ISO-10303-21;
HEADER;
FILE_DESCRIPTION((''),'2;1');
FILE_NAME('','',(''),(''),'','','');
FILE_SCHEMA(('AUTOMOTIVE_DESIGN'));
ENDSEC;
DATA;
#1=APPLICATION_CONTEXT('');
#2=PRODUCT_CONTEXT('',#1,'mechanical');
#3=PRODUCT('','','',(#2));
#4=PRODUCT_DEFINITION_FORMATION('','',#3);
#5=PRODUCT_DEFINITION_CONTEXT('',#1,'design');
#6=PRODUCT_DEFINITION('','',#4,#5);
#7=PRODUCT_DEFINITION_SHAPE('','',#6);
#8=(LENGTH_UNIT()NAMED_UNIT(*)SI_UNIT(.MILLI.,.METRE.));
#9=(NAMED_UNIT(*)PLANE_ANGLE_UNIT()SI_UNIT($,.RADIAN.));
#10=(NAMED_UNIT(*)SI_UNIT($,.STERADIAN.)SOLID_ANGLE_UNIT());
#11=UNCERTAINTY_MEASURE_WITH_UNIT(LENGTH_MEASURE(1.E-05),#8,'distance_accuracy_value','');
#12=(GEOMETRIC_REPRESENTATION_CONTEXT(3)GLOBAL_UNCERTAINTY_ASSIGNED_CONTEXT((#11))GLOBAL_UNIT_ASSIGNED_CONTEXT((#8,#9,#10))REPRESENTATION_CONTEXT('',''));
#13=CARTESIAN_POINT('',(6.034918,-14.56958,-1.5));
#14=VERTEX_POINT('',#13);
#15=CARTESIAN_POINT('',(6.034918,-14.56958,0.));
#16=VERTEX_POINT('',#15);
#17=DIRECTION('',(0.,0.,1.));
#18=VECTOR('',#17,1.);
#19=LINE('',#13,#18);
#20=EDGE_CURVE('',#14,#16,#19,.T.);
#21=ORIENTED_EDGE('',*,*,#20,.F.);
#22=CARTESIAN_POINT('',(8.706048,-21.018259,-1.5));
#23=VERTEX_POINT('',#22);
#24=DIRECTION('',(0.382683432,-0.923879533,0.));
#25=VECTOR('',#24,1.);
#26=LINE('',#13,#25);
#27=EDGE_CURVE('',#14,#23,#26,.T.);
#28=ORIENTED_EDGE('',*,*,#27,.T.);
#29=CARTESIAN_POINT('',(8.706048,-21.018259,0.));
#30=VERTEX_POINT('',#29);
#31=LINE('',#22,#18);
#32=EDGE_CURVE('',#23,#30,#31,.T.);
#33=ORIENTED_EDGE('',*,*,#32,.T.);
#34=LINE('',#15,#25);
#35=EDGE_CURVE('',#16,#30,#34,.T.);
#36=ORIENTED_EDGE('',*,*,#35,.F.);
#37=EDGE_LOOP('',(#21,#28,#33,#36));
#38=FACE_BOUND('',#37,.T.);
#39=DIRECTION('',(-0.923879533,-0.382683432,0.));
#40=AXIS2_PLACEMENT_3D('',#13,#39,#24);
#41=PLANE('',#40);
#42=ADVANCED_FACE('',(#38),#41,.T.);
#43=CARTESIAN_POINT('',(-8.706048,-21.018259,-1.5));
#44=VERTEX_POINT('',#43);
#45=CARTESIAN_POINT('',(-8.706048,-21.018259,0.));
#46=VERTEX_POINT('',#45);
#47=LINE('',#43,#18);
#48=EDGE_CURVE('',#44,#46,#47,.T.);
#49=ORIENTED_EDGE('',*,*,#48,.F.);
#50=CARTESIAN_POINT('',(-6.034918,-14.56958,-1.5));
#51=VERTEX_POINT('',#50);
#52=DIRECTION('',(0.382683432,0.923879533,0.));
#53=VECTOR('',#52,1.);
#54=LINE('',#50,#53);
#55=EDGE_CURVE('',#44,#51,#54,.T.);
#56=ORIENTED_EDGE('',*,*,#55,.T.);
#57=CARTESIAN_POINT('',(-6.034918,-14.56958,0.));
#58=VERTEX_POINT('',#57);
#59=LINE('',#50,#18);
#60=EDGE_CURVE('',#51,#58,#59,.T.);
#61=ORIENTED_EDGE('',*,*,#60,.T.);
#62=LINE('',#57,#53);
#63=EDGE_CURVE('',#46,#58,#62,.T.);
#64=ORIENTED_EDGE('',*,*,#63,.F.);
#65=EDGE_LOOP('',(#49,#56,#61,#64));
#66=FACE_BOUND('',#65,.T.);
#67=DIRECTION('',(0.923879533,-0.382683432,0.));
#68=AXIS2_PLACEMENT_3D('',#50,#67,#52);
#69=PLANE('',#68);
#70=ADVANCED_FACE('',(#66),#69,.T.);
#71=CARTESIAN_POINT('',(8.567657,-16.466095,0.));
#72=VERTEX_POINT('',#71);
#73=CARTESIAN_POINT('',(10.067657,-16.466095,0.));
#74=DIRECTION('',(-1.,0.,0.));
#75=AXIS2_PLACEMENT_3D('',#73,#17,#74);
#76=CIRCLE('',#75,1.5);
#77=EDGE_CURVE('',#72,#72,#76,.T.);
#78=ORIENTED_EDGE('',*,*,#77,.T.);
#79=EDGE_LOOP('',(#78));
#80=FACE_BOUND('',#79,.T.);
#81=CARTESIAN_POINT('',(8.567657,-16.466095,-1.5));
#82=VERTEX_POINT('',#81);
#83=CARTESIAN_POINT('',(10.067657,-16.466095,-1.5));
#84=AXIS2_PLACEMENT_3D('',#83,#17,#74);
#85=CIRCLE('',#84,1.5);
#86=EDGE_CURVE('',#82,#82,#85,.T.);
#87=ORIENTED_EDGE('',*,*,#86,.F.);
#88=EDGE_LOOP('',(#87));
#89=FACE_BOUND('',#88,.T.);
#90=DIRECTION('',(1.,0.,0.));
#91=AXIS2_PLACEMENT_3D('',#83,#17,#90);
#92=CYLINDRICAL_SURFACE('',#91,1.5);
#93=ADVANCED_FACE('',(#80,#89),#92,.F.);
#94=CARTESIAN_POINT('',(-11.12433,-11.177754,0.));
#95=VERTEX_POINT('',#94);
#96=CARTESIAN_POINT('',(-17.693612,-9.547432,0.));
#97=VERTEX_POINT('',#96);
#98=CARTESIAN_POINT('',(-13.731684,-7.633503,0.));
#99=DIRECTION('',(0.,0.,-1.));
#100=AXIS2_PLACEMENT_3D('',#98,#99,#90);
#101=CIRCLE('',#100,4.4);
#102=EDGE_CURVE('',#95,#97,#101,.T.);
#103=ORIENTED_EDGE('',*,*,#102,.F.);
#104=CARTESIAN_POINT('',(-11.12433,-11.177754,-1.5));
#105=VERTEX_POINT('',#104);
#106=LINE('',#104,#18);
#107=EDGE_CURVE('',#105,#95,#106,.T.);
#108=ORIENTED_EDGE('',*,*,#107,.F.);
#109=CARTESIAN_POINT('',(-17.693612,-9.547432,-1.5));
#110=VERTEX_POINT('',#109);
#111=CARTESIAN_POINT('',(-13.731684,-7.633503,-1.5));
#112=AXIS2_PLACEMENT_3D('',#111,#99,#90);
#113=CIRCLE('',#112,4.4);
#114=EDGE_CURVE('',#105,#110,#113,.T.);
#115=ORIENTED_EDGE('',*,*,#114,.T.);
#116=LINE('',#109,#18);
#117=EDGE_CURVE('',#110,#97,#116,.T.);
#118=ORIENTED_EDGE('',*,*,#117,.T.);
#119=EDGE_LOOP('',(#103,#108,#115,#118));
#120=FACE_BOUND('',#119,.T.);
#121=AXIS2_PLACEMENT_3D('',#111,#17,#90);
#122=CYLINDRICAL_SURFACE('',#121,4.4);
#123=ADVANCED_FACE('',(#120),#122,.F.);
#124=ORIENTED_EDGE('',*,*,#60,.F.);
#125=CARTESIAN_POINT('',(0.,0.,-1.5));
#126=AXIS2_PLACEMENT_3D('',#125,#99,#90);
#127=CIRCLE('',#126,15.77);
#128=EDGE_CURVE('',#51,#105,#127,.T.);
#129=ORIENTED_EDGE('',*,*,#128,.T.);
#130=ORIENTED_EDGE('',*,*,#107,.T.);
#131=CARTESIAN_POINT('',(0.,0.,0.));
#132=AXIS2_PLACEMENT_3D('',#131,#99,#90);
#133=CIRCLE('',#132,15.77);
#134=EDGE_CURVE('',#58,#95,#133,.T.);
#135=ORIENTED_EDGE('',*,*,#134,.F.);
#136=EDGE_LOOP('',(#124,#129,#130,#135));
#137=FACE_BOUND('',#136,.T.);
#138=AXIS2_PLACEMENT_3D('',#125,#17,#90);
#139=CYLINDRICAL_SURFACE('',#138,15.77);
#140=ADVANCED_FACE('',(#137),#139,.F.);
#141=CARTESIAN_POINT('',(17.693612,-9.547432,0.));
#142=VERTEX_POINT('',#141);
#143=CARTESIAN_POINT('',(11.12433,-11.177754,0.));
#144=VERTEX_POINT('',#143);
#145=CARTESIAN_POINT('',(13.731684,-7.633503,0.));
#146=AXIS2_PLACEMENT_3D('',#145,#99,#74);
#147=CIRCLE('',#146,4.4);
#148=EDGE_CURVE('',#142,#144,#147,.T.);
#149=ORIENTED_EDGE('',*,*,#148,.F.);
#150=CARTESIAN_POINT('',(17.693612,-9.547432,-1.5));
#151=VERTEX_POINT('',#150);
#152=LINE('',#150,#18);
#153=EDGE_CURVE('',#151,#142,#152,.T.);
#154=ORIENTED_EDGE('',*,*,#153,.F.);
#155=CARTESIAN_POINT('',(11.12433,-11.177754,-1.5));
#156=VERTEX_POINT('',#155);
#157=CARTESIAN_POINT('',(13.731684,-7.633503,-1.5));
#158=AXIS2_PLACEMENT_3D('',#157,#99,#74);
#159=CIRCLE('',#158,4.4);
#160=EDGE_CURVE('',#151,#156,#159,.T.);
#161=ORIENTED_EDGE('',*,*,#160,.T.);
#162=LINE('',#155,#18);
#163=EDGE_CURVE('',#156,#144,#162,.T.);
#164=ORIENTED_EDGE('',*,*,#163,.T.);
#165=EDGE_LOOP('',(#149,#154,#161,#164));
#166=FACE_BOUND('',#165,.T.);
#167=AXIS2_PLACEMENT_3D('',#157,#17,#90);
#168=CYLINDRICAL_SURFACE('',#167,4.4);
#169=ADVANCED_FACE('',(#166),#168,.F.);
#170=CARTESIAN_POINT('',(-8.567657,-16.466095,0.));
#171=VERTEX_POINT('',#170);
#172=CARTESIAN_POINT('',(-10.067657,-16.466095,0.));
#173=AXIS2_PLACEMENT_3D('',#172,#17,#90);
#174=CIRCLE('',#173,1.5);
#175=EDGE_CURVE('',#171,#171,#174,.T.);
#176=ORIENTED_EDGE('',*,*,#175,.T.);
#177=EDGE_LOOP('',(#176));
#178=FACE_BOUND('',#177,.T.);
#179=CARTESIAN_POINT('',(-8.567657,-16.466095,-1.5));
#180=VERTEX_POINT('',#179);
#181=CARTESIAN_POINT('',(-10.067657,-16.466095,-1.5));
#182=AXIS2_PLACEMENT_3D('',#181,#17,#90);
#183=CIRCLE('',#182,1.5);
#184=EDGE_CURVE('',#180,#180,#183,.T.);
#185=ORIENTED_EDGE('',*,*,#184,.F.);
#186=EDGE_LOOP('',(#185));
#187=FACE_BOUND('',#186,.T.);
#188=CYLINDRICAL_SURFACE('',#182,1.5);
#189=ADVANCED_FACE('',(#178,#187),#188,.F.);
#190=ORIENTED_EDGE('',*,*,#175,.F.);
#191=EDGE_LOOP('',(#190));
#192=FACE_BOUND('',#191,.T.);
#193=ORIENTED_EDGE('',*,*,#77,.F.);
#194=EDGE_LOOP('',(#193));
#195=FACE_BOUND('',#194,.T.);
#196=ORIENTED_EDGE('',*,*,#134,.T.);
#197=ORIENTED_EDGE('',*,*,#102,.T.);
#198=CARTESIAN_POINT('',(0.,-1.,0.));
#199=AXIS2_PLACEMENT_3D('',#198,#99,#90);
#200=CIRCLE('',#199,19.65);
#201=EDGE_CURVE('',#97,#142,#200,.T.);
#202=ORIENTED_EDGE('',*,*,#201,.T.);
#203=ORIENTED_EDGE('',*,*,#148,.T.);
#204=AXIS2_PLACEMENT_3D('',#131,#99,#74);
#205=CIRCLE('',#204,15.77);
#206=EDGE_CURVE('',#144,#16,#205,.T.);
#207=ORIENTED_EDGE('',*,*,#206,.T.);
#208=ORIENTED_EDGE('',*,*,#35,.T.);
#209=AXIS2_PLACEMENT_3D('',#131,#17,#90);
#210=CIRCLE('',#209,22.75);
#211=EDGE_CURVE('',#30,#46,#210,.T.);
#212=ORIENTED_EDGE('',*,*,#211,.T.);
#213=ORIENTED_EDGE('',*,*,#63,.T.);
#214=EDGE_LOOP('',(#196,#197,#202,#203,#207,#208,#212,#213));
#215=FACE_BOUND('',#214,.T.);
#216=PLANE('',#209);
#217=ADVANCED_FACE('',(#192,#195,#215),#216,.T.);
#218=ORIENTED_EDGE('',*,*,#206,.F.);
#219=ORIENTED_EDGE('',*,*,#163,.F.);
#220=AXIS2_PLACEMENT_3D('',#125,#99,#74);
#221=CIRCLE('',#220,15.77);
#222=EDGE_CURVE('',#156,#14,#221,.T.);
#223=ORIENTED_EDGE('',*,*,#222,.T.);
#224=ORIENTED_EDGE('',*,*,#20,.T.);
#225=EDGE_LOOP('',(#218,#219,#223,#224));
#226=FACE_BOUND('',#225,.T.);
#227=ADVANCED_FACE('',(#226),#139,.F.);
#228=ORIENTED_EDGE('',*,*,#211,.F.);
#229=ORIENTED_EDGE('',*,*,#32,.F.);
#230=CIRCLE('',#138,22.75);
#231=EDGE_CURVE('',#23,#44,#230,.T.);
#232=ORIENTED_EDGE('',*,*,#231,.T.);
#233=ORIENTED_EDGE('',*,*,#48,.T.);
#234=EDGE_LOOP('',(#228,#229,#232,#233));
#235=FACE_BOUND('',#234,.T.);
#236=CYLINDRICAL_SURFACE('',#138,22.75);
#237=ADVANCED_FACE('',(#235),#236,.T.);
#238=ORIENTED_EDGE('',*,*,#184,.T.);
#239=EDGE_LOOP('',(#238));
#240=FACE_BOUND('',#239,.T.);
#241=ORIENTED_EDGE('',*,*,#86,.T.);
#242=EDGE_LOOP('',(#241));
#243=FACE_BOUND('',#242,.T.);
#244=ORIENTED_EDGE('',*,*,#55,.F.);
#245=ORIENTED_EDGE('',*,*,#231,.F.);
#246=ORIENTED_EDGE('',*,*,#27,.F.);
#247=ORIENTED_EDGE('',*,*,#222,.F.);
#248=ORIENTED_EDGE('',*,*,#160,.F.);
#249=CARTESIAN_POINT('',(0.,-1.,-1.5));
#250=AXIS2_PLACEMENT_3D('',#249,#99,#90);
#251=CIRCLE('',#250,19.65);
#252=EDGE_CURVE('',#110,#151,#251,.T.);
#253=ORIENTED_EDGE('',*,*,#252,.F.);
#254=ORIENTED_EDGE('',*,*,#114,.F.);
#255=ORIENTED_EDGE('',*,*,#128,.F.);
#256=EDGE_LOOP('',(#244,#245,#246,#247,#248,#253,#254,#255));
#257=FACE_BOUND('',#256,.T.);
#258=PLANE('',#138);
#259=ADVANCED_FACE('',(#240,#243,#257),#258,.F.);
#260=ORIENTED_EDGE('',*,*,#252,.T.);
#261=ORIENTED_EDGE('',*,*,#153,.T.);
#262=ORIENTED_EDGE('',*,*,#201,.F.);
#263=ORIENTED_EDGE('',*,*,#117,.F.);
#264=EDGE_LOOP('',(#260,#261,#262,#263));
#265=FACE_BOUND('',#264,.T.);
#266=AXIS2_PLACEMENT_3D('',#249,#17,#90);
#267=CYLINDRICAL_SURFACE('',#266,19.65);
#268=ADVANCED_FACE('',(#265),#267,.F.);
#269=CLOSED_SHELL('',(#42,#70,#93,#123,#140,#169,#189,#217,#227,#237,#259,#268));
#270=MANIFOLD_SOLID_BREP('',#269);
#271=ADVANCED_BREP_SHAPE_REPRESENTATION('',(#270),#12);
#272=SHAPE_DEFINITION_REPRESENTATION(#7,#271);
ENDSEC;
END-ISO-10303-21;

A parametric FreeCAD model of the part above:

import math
import FreeCAD as App
import Part
import Sketcher

V = App.Vector
Q = App.Units.Quantity

doc = App.newDocument("Part")
body = doc.addObject("PartDesign::Body", "Body")

# Sketch on XY plane
sketch1 = body.newObject("Sketcher::SketchObject", "Sketch")
sketch1.AttachmentSupport = (doc.getObject("XY_Plane"), [""])
sketch1.MapMode = "FlatFace"
sketch1.addGeometry([
    Part.LineSegment(V(-8.706048, -21.018259, 0), V(-6.034918, -14.56958, 0)),  # 0
    Part.ArcOfCircle(Part.Circle(V(0, 0, 0), V(0, 0, 1), 15.77), math.radians(-134.862752), math.radians(-112.5)),  # 1
    Part.ArcOfCircle(Part.Circle(V(-13.731684, -7.633503, 0), V(0, 0, 1), 4.4), math.radians(-154.215735), math.radians(-53.659673)),  # 2
    Part.ArcOfCircle(Part.Circle(V(0, -1, 0), V(0, 0, 1), 19.65), math.radians(-25.784265), math.radians(205.784265)),  # 3
    Part.ArcOfCircle(Part.Circle(V(13.731684, -7.633503, 0), V(0, 0, 1), 4.4), math.radians(-126.340327), math.radians(-25.784265)),  # 4
    Part.ArcOfCircle(Part.Circle(V(0, 0, 0), V(0, 0, 1), 15.77), math.radians(-67.5), math.radians(-45.137248)),  # 5
    Part.LineSegment(V(6.034918, -14.56958, 0), V(8.706048, -21.018259, 0)),  # 6
    Part.ArcOfCircle(Part.Circle(V(0, 0, 0), V(0, 0, 1), 22.75), math.radians(-67.5), math.radians(247.5)),  # 7
    Part.Circle(V(10.067657, -16.466095, 0), V(0, 0, 1), 1.5),  # 8
    Part.Circle(V(-10.067657, -16.466095, 0), V(0, 0, 1), 1.5),  # 9
], False)
sketch1.addConstraint([
    Sketcher.Constraint("Coincident", 0, 2, 1, 2),
    Sketcher.Constraint("Coincident", 1, 1, 2, 2),
    Sketcher.Constraint("Tangent", 2, 1, 3, 2),
    Sketcher.Constraint("Tangent", 3, 1, 4, 2),
    Sketcher.Constraint("Coincident", 4, 1, 5, 2),
    Sketcher.Constraint("Coincident", 5, 1, 6, 1),
    Sketcher.Constraint("Coincident", 6, 2, 7, 1),
    Sketcher.Constraint("Coincident", 7, 2, 0, 1),
    Sketcher.Constraint("Coincident", 1, 3, -1, 1),
    Sketcher.Constraint("Coincident", 5, 3, -1, 1),
    Sketcher.Constraint("Coincident", 7, 3, -1, 1),
    Sketcher.Constraint("Equal", 2, 4),
    Sketcher.Constraint("Equal", 1, 5),
    Sketcher.Constraint("Equal", 8, 9),
    Sketcher.Constraint("Symmetric", 2, 3, 4, 3, -2),
    Sketcher.Constraint("Symmetric", 8, 3, 9, 3, -2),
    Sketcher.Constraint("Horizontal", 0, 2, 5, 1),
    Sketcher.Constraint("Horizontal", 6, 2, 7, 2),
    Sketcher.Constraint("Diameter", 8, 3.0),
    Sketcher.Constraint("Radius", 2, 4.4),
    Sketcher.Constraint("Radius", 1, 15.77),
    Sketcher.Constraint("Radius", 3, 19.65),
    Sketcher.Constraint("Radius", 7, 22.75),
    Sketcher.Constraint("DistanceY", 3, 3, -1, 1, 1.0),
    Sketcher.Constraint("Angle", 0, Q("67.5 deg")),
    Sketcher.Constraint("DistanceY", 0, 2, -1, 1, 14.56958),
    Sketcher.Constraint("DistanceX", 1, 1, -1, 1, 11.12433),
    Sketcher.Constraint("DistanceY", 8, 3, 4, 3, 8.832592),
    Sketcher.Constraint("DistanceX", 9, 3, 0, 2, 4.032739),
])
pad1 = body.newObject("PartDesign::Pad", "Pad")
pad1.Profile = sketch1
pad1.Length = 1.5
pad1.Reversed = True

doc.recompute()
